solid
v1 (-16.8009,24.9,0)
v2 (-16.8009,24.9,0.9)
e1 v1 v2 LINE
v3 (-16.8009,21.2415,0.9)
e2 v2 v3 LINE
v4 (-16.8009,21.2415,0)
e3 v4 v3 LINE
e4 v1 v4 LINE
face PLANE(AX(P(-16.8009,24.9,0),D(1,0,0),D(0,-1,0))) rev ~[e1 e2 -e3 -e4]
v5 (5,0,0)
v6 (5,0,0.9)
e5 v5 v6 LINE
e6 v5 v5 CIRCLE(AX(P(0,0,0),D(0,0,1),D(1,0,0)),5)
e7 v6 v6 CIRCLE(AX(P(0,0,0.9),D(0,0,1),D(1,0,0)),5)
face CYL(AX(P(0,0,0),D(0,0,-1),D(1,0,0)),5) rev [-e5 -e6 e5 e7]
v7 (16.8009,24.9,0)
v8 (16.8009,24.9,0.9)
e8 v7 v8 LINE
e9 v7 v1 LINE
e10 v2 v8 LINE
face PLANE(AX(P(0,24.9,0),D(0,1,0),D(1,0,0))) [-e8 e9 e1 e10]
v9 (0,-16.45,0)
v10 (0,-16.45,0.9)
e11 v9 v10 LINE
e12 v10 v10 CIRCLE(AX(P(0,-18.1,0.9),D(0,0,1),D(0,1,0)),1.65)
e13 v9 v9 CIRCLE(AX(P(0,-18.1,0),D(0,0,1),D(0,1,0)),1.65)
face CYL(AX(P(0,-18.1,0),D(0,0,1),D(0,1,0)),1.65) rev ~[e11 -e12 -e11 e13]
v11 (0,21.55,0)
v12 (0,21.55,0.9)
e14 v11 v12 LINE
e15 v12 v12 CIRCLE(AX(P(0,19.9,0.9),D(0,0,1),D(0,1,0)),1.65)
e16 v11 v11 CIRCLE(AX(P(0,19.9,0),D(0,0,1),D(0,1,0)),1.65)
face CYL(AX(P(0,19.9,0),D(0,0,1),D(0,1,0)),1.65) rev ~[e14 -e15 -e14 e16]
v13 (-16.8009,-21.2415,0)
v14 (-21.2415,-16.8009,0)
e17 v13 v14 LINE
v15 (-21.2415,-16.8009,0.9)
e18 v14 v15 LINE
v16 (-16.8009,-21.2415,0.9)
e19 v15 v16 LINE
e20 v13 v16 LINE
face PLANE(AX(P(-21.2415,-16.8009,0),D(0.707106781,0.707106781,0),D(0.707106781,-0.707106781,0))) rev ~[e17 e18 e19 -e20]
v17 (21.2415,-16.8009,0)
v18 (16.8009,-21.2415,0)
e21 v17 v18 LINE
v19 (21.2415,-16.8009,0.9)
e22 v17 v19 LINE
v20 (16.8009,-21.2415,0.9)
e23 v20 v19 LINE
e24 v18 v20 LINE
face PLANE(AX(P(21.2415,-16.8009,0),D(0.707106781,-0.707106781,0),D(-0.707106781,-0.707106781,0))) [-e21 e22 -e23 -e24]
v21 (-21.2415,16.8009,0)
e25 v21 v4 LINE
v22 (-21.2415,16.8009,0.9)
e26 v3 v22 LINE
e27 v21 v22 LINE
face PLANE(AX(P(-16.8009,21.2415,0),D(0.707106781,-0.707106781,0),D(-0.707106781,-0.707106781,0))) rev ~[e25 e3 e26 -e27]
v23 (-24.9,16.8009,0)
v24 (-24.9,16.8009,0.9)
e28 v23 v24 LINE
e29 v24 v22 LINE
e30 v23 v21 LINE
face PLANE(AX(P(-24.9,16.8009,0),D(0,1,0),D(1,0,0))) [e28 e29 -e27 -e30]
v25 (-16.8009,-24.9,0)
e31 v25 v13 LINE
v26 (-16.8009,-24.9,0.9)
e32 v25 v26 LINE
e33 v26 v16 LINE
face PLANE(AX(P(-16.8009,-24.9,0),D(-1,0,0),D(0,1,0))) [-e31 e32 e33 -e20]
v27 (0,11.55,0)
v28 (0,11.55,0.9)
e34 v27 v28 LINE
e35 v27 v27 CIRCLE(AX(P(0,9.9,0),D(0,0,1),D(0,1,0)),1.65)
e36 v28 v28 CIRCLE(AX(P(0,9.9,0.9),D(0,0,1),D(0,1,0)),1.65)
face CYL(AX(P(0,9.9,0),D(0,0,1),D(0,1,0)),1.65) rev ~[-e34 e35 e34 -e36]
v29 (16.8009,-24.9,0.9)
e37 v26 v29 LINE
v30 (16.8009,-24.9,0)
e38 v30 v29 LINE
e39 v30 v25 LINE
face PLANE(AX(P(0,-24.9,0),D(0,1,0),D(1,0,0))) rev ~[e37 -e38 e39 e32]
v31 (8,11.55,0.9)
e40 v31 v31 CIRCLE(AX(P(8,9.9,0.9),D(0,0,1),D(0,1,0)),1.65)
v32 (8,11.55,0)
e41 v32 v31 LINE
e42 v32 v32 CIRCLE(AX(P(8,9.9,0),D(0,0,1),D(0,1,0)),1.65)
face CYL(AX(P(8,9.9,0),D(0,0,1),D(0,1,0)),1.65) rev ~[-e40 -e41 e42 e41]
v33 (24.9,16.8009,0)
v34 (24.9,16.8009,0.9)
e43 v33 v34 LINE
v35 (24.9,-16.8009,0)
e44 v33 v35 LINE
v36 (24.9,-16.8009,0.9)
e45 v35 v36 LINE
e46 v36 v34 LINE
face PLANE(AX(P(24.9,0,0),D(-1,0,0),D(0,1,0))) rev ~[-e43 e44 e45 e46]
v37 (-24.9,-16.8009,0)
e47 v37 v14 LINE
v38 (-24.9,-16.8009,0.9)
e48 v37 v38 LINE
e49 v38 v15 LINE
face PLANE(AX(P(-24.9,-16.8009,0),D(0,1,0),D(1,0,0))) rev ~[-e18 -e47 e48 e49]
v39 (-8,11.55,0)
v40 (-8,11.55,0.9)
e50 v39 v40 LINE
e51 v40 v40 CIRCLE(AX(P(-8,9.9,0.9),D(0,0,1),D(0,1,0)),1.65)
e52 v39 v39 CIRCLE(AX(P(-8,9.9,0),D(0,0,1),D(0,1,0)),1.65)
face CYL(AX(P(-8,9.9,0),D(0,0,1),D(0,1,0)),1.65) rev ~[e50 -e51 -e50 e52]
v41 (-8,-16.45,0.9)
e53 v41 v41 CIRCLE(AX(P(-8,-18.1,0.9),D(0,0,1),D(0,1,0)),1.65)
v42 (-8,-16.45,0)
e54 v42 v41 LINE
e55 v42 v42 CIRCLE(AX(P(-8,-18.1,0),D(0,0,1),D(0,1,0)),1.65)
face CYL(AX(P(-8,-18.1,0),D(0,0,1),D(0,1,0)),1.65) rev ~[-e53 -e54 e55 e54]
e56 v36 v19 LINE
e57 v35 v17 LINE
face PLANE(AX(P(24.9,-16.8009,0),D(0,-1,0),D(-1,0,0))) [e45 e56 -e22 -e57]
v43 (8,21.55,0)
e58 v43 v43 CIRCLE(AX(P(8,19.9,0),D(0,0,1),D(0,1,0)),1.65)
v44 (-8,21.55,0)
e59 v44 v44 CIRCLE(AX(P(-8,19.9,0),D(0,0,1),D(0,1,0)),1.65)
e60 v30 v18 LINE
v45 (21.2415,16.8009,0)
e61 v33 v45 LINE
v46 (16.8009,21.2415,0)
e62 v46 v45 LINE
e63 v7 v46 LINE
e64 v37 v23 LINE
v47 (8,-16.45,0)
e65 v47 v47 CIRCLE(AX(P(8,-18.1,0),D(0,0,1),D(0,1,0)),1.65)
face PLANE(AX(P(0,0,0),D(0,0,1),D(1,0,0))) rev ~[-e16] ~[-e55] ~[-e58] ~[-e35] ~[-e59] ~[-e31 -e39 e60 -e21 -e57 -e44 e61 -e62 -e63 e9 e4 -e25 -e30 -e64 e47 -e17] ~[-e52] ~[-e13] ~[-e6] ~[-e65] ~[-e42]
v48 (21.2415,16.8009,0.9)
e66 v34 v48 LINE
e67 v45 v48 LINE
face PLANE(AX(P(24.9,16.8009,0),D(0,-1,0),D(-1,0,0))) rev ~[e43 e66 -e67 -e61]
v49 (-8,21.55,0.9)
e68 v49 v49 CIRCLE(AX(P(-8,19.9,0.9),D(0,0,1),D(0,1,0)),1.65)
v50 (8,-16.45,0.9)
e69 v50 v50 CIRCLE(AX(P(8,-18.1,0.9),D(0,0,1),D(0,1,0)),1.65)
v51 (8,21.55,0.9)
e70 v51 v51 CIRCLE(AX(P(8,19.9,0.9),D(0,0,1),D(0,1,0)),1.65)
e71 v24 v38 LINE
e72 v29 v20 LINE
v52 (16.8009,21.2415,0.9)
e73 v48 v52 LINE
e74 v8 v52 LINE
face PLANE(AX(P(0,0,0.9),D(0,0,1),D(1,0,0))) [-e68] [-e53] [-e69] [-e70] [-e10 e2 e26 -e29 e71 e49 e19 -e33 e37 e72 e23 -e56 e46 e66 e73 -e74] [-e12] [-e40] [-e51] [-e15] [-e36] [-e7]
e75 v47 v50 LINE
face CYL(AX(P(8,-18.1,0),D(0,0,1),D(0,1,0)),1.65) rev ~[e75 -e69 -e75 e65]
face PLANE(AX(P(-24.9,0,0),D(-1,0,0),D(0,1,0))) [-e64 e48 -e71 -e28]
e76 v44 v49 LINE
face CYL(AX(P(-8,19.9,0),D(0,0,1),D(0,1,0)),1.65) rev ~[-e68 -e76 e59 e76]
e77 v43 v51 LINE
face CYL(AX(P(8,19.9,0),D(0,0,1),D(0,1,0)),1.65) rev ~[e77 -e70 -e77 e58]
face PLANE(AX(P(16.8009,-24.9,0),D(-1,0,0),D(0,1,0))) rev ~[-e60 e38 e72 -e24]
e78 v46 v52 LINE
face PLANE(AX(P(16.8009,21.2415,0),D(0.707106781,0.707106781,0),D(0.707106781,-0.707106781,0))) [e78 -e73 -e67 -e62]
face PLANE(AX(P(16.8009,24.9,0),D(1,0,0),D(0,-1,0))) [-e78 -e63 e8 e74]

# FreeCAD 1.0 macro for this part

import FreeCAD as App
import Part
import Sketcher
Q = App.Units.Quantity


def add_polygon(sketch, points):
    """Adds a closed chain of lines whose ends are joined by coincident constraints."""
    first, n = sketch.GeometryCount, len(points)
    for a, b in zip(points, points[1:] + points[:1]):
        sketch.addGeometry(Part.LineSegment(App.Vector(*a, 0), App.Vector(*b, 0)), False)
    for i in range(n):
        sketch.addConstraint(Sketcher.Constraint("Coincident", first + i, 2, first + (i + 1) % n, 1))

doc = App.newDocument("Part")
params = doc.addObject("Spreadsheet::Sheet", "Params")
for row, (alias, value) in enumerate([
    ("sketch1_diameter", "10 mm"),
    ("sketch1_length", "6.28 mm"),
    ("pad1_length", "0.9 mm"),
    ("sketch2_diameter", "3.3 mm"),
    ("hole_diameter", "3.3 mm"),
    ("hole_depth", "12 mm"),
], start=1):
    params.set(f"A{row}", alias)
    params.set(f"B{row}", "=" + value)
    params.setAlias(f"B{row}", alias)

body = doc.addObject("PartDesign::Body", "Body")

sketch1 = body.newObject("Sketcher::SketchObject", "Sketch")
sketch1.AttachmentSupport = (doc.getObject("XY_Plane"), [""])
sketch1.MapMode = "FlatFace"
add_polygon(sketch1, [(16.8009, 24.9), (-16.8009, 24.9), (-16.8009, 21.2415), (-21.2415, 16.8009), (-24.9, 16.8009), (-24.9, -16.8009), (-21.2415, -16.8009), (-16.8009, -21.2415), (-16.8009, -24.9), (16.8009, -24.9), (16.8009, -21.2415), (21.2415, -16.8009), (24.9, -16.8009), (24.9, 16.8009), (21.2415, 16.8009), (16.8009, 21.2415)])
sketch1.addGeometry(Part.Circle(App.Vector(0, 0, 0), App.Vector(0, 0, 1), 5), False)
sketch1.addConstraint(Sketcher.Constraint("Horizontal", 0))
sketch1.addConstraint(Sketcher.Constraint("Vertical", 1))
sketch1.addConstraint(Sketcher.Constraint("Horizontal", 3))
sketch1.addConstraint(Sketcher.Constraint("Vertical", 4))
sketch1.addConstraint(Sketcher.Constraint("Horizontal", 5))
sketch1.addConstraint(Sketcher.Constraint("Vertical", 7))
sketch1.addConstraint(Sketcher.Constraint("Horizontal", 8))
sketch1.addConstraint(Sketcher.Constraint("Vertical", 9))
sketch1.addConstraint(Sketcher.Constraint("Horizontal", 11))
sketch1.addConstraint(Sketcher.Constraint("Vertical", 12))
sketch1.addConstraint(Sketcher.Constraint("Horizontal", 13))
sketch1.addConstraint(Sketcher.Constraint("Vertical", 15))
sketch1.addConstraint(Sketcher.Constraint("Coincident", 16, 3, -1, 1))
sketch1.addConstraint(Sketcher.Constraint("Symmetric", 0, 2, 8, 2, -1, 1))
sketch1.addConstraint(Sketcher.Constraint("Symmetric", 2, 2, 10, 2, -1, 1))
sketch1.addConstraint(Sketcher.Constraint("Symmetric", 4, 2, 12, 2, -1, 1))
sketch1.addConstraint(Sketcher.Constraint("Symmetric", 6, 2, 14, 2, -1, 1))
sketch1.addConstraint(Sketcher.Constraint("Symmetric", 6, 2, 9, 2, -2))
sketch1.addConstraint(Sketcher.Constraint("Symmetric", 5, 2, 10, 2, -2))
sketch1.addConstraint(Sketcher.Constraint("Perpendicular", 2, 6))
sketch1.addConstraint(Sketcher.Constraint("Perpendicular", 6, 10))
sketch1.addConstraint(Sketcher.Constraint("Perpendicular", 10, 14))
sketch1.addConstraint(Sketcher.Constraint("Equal", 13, 1))
sketch1.addConstraint(Sketcher.Constraint("Equal", 8, 4))
sketch1.addConstraint(Sketcher.Constraint("Diameter", 16, Q("10 mm")))
sketch1.addConstraint(Sketcher.Constraint("DistanceY", -1, 1, 0, 2, Q("24.9 mm")))
sketch1.addConstraint(Sketcher.Constraint("Distance", 2, Q("6.28 mm")))
sketch1.addConstraint(Sketcher.Constraint("DistanceX", 0, 2, 0, 1, Q("33.6018 mm")))
sketch1.setExpression("Constraints[40]", "Params.sketch1_diameter")
sketch1.setExpression("Constraints[42]", "Params.sketch1_length")
pad1 = body.newObject("PartDesign::Pad", "Pad")
pad1.Profile = sketch1
pad1.setExpression("Length", "Params.pad1_length")

sketch2 = body.newObject("Sketcher::SketchObject", "Sketch001")
sketch2.AttachmentSupport = (doc.getObject("XY_Plane"), [""])
sketch2.MapMode = "FlatFace"
sketch2.addGeometry(Part.Circle(App.Vector(8, 19.9, 0), App.Vector(0, 0, 1), 1.65), False)
sketch2.addGeometry(Part.Circle(App.Vector(0, 19.9, 0), App.Vector(0, 0, 1), 1.65), False)
sketch2.addGeometry(Part.Circle(App.Vector(-8, 19.9, 0), App.Vector(0, 0, 1), 1.65), False)
sketch2.addGeometry(Part.Circle(App.Vector(0, -18.1, 0), App.Vector(0, 0, 1), 1.65), False)
sketch2.addGeometry(Part.Circle(App.Vector(-8, -18.1, 0), App.Vector(0, 0, 1), 1.65), False)
sketch2.addGeometry(Part.Circle(App.Vector(8, 9.9, 0), App.Vector(0, 0, 1), 1.65), False)
sketch2.addGeometry(Part.Circle(App.Vector(0, 9.9, 0), App.Vector(0, 0, 1), 1.65), False)
sketch2.addGeometry(Part.Circle(App.Vector(-8, 9.9, 0), App.Vector(0, 0, 1), 1.65), False)
sketch2.addGeometry(Part.Circle(App.Vector(8, -18.1, 0), App.Vector(0, 0, 1), 1.65), False)
sketch2.addConstraint(Sketcher.Constraint("Equal", 0, 1))
sketch2.addConstraint(Sketcher.Constraint("Equal", 1, 2))
sketch2.addConstraint(Sketcher.Constraint("Equal", 2, 3))
sketch2.addConstraint(Sketcher.Constraint("Equal", 3, 4))
sketch2.addConstraint(Sketcher.Constraint("Equal", 4, 5))
sketch2.addConstraint(Sketcher.Constraint("Equal", 5, 6))
sketch2.addConstraint(Sketcher.Constraint("Equal", 6, 7))
sketch2.addConstraint(Sketcher.Constraint("Equal", 7, 8))
sketch2.addConstraint(Sketcher.Constraint("Symmetric", 0, 3, 2, 3, -2))
sketch2.addConstraint(Sketcher.Constraint("Symmetric", 5, 3, 7, 3, -2))
sketch2.addConstraint(Sketcher.Constraint("Symmetric", 4, 3, 8, 3, -2))
sketch2.addConstraint(Sketcher.Constraint("PointOnObject", 1, 3, -2))
sketch2.addConstraint(Sketcher.Constraint("PointOnObject", 3, 3, -2))
sketch2.addConstraint(Sketcher.Constraint("PointOnObject", 6, 3, -2))
sketch2.addConstraint(Sketcher.Constraint("Horizontal", 0, 3, 1, 3))
sketch2.addConstraint(Sketcher.Constraint("Horizontal", 3, 3, 4, 3))
sketch2.addConstraint(Sketcher.Constraint("Horizontal", 5, 3, 6, 3))
sketch2.addConstraint(Sketcher.Constraint("Vertical", 2, 3, 4, 3))
sketch2.addConstraint(Sketcher.Constraint("Vertical", 0, 3, 5, 3))
sketch2.addConstraint(Sketcher.Constraint("Diameter", 0, Q("3.3 mm")))
sketch2.addConstraint(Sketcher.Constraint("DistanceX", -1, 1, 0, 3, Q("8 mm")))
sketch2.addConstraint(Sketcher.Constraint("DistanceY", 3, 3, 1, 3, Q("38 mm")))
sketch2.addConstraint(Sketcher.Constraint("DistanceY", 5, 3, 0, 3, Q("10 mm")))
sketch2.addConstraint(Sketcher.Constraint("DistanceY", -1, 1, 0, 3, Q("19.9 mm")))
sketch2.setExpression("Constraints[19]", "Params.sketch2_diameter")
doc.recompute()
hole = body.newObject("PartDesign::Hole", "Hole")
hole.Profile = sketch2
hole.ThreadType = "None"
hole.setExpression("Diameter", "Params.hole_diameter")
hole.DepthType = "Dimension"
hole.setExpression("Depth", "Params.hole_depth")
hole.DrillPoint = "Angled"
hole.DrillPointAngle = 118
hole.Reversed = True

doc.recompute()
